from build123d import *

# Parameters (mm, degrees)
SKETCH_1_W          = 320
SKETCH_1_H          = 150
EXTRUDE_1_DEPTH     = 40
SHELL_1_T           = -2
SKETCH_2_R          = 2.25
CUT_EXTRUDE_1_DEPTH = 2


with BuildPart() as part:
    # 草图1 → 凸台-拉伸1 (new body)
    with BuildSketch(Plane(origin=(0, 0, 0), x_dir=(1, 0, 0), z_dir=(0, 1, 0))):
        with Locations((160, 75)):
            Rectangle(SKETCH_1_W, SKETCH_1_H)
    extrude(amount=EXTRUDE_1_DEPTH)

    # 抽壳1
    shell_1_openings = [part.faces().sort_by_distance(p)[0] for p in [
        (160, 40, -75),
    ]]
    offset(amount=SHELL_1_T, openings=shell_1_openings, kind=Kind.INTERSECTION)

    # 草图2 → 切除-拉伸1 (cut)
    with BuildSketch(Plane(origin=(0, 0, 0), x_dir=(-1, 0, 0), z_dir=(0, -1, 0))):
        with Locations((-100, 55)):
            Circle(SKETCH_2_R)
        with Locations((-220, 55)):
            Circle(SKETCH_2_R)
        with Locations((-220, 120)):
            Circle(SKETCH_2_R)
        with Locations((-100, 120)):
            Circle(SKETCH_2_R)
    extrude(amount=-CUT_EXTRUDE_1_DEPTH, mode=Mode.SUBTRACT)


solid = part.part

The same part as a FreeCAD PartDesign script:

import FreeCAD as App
import Part
import Sketcher
from FreeCAD import Vector


def faces_at(feature, points):
    """Names of the faces that lie closest to the given points."""
    faces = feature.Shape.Faces
    near = lambda p: min(range(len(faces)), key=lambda i: faces[i].distToShape(Part.Vertex(*p))[0])
    return sorted({f"Face{near(p) + 1}" for p in points})

doc = App.newDocument("Part")
body = doc.addObject("PartDesign::Body", "Body")

sketch1 = body.newObject("Sketcher::SketchObject", "Sketch")
sketch1.AttachmentSupport = (doc.getObject("XZ_Plane"), [""])
sketch1.MapMode = "FlatFace"
sketch1.addGeometry([
    Part.LineSegment(Vector(0, -150, 0), Vector(0, 0, 0)),
    Part.LineSegment(Vector(0, 0, 0), Vector(320, 0, 0)),
    Part.LineSegment(Vector(320, 0, 0), Vector(320, -150, 0)),
    Part.LineSegment(Vector(320, -150, 0), Vector(0, -150, 0)),
], False)
sketch1.addConstraint([
    Sketcher.Constraint("Coincident", 0, 2, 1, 1),
    Sketcher.Constraint("Coincident", 1, 2, 2, 1),
    Sketcher.Constraint("Coincident", 2, 2, 3, 1),
    Sketcher.Constraint("Coincident", 3, 2, 0, 1),
    Sketcher.Constraint("Vertical", 0),
    Sketcher.Constraint("Horizontal", 1),
    Sketcher.Constraint("Vertical", 2),
    Sketcher.Constraint("Horizontal", 3),
    Sketcher.Constraint("Coincident", 0, 2, -1, 1),
    Sketcher.Constraint("DistanceX", 1, 1, 1, 2, 320.0),
    Sketcher.Constraint("DistanceY", 0, 1, 0, 2, 150.0),
])
pad1 = body.newObject("PartDesign::Pad", "Pad")
pad1.Profile = sketch1
pad1.Length = 40
pad1.Reversed = True
doc.recompute()

thickness = body.newObject("PartDesign::Thickness", "Thickness")
thickness.Base = (pad1, faces_at(pad1, [(160, 40, -75)]))
thickness.Value = 2
thickness.Reversed = True
thickness.Join = "Intersection"

sketch2 = body.newObject("Sketcher::SketchObject", "Sketch001")
sketch2.AttachmentSupport = (doc.getObject("XZ_Plane"), [""])
sketch2.MapMode = "FlatFace"
sketch2.addGeometry([
    Part.Circle(Vector(100, -55, 0), Vector(0, 0, 1), 2.25),
    Part.Circle(Vector(220, -55, 0), Vector(0, 0, 1), 2.25),
    Part.Circle(Vector(220, -120, 0), Vector(0, 0, 1), 2.25),
    Part.Circle(Vector(100, -120, 0), Vector(0, 0, 1), 2.25),
], False)
sketch2.addConstraint([
    Sketcher.Constraint("Equal", 0, 1),
    Sketcher.Constraint("Equal", 1, 2),
    Sketcher.Constraint("Equal", 2, 3),
    Sketcher.Constraint("Horizontal", 0, 3, 1, 3),
    Sketcher.Constraint("Horizontal", 2, 3, 3, 3),
    Sketcher.Constraint("Vertical", 1, 3, 2, 3),
    Sketcher.Constraint("Vertical", 0, 3, 3, 3),
    Sketcher.Constraint("Diameter", 0, 4.5),
    Sketcher.Constraint("DistanceX", -1, 1, 0, 3, 100.0),
    Sketcher.Constraint("DistanceY", 0, 3, -1, 1, 55.0),
    Sketcher.Constraint("DistanceX", -1, 1, 1, 3, 220.0),
    Sketcher.Constraint("DistanceY", 2, 3, -1, 1, 120.0),
])
pocket1 = body.newObject("PartDesign::Pocket", "Pocket")
pocket1.Profile = sketch2
pocket1.Length = 2

doc.recompute()
